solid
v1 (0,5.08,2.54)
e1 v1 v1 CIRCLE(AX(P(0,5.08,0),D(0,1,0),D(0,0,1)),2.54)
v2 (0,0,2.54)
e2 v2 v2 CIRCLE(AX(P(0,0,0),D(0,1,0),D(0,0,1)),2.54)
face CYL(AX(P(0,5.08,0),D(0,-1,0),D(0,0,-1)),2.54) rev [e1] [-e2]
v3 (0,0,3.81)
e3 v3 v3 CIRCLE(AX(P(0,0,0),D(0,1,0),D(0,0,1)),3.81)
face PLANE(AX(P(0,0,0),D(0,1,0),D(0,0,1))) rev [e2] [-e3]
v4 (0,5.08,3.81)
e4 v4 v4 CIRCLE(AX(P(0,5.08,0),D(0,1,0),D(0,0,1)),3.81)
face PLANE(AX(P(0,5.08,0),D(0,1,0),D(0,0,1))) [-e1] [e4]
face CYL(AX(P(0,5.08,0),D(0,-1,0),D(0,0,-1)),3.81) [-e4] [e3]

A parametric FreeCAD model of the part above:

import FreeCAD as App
import Part
import Sketcher
from FreeCAD import Vector
Q = App.Units.Quantity

doc = App.newDocument("Part")
body = doc.addObject("PartDesign::Body", "Body")

sketch1 = body.newObject("Sketcher::SketchObject", "Sketch")
sketch1.AttachmentSupport = (doc.getObject("XZ_Plane"), [""])
sketch1.MapMode = "FlatFace"
sketch1.addGeometry([
    Part.Circle(Vector(0, 0, 0), Vector(0, 0, 1), 3.8),
    Part.Circle(Vector(0, 0, 0), Vector(0, 0, 1), 2.5),
], False)
sketch1.addConstraint([
    Sketcher.Constraint("Coincident", 0, 3, -1, 1),
    Sketcher.Constraint("Coincident", 1, 3, -1, 1),
    Sketcher.Constraint("Diameter", 0, Q("0.3 in")),
    Sketcher.Constraint("Diameter", 1, Q("0.2 in")),
])
pad1 = body.newObject("PartDesign::Pad", "Pad")
pad1.Profile = sketch1
pad1.Length = Q("0.2 in")
pad1.Reversed = True

doc.recompute()
